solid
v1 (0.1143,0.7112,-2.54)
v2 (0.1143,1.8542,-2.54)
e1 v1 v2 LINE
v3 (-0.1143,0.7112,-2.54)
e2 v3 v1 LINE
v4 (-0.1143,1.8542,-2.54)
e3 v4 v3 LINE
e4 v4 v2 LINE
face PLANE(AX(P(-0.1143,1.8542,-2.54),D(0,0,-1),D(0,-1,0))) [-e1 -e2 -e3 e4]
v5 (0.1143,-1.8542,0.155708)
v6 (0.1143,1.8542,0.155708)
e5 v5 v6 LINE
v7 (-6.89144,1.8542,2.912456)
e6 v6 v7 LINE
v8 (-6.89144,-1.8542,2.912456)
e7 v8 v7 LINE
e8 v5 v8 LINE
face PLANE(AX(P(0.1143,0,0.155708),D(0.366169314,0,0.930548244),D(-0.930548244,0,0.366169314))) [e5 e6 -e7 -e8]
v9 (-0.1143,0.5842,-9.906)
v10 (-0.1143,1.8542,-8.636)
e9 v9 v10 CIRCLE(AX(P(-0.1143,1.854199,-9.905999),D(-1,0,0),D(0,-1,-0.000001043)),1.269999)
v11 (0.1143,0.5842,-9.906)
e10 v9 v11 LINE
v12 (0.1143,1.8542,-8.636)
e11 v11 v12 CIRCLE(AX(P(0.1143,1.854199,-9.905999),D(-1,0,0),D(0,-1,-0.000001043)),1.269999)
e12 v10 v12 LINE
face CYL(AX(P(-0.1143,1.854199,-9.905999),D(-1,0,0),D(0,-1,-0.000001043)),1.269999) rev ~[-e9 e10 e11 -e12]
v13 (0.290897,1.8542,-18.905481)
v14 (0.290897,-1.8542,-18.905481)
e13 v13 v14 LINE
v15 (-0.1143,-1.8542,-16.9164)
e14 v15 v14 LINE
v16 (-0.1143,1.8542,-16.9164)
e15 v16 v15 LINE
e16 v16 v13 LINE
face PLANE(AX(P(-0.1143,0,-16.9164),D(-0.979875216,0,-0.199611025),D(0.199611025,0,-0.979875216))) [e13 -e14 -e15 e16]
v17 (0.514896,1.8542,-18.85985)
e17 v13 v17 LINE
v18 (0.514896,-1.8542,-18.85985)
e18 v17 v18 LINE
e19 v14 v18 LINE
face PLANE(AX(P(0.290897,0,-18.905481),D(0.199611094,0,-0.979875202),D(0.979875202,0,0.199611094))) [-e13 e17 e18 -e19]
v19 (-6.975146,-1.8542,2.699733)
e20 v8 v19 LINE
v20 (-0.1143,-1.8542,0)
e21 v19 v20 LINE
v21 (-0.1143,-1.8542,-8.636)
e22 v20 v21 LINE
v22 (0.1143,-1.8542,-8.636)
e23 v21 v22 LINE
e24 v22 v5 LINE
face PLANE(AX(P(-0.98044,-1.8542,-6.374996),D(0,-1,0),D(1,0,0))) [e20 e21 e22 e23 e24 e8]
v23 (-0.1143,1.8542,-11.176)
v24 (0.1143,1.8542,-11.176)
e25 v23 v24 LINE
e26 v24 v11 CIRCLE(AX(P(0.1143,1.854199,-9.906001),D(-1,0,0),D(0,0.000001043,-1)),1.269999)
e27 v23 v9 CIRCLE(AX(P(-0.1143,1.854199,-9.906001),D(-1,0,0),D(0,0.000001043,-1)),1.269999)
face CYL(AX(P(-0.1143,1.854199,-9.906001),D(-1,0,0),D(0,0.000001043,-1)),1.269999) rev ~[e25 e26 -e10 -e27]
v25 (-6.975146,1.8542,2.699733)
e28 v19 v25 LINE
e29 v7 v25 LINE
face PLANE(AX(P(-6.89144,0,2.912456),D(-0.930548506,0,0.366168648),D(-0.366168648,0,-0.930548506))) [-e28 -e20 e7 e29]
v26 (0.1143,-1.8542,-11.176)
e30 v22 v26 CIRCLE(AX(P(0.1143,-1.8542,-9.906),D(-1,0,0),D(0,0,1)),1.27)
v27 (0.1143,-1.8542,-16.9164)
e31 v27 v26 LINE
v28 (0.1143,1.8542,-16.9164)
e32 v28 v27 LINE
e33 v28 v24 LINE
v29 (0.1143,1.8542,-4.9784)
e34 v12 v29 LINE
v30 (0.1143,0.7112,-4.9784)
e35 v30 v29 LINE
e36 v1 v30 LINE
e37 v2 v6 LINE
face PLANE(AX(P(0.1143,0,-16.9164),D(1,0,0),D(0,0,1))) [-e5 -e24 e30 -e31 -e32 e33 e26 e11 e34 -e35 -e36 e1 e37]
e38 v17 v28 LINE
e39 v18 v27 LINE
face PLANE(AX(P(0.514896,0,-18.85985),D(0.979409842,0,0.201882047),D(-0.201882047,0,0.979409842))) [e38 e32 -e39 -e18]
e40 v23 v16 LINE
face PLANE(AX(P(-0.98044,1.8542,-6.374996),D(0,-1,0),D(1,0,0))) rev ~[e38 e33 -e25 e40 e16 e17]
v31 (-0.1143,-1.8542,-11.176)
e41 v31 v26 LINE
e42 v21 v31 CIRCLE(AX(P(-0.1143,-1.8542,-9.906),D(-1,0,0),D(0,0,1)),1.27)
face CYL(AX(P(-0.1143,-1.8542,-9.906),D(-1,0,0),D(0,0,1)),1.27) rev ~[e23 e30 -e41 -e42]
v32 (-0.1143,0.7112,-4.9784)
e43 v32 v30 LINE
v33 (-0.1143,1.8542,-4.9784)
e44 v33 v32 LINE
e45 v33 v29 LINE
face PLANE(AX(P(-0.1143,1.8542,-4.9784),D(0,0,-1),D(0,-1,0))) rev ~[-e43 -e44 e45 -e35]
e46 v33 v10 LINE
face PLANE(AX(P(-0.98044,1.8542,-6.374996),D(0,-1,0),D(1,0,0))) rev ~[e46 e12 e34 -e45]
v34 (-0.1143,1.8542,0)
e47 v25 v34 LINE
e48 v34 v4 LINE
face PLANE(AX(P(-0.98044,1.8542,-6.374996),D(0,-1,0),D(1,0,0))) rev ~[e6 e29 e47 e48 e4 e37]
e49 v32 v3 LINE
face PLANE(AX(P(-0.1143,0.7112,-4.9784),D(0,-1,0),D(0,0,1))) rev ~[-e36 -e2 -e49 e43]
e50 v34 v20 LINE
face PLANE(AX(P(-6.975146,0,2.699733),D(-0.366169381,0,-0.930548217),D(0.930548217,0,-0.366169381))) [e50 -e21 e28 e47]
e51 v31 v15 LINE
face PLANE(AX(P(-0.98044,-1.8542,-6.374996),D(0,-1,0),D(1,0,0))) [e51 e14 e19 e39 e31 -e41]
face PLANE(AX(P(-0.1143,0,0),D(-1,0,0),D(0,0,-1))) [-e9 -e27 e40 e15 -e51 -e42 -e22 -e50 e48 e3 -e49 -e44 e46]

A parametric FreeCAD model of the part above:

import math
import FreeCAD as App
import Part
import Sketcher

V = App.Vector
Q = App.Units.Quantity


def add_polygon(sketch, points):
    """Adds a closed chain of lines whose ends are joined by coincident constraints."""
    first, n = sketch.GeometryCount, len(points)
    for a, b in zip(points, points[1:] + points[:1]):
        sketch.addGeometry(Part.LineSegment(App.Vector(*a, 0), App.Vector(*b, 0)), False)
    for i in range(n):
        sketch.addConstraint(Sketcher.Constraint("Coincident", first + i, 2, first + (i + 1) % n, 1))

doc = App.newDocument("Part")
body = doc.addObject("PartDesign::Body", "Body")

sketch1 = doc.addObject("Sketcher::SketchObject", "Sketch")
body.addObject(sketch1)
sketch1.AttachmentSupport = (doc.XZ_Plane, [""])
sketch1.MapMode = "FlatFace"
add_polygon(sketch1, [(-6.975146, 2.699733), (-0.1143, 0), (-0.1143, -16.9164), (0.290897, -18.905481), (0.514896, -18.85985), (0.1143, -16.9164), (0.1143, 0.155708), (-6.89144, 2.912456)])
sketch1.addConstraint([
    Sketcher.Constraint("Vertical", 1),
    Sketcher.Constraint("Vertical", 5),
    Sketcher.Constraint("PointOnObject", 0, 2, -1),
    Sketcher.Constraint("DistanceY", 1, 2, 1, 1, Q("0.666 in")),
    Sketcher.Constraint("Distance", 3, Q("0.009 in")),
    Sketcher.Constraint("Distance", 7, Q("0.009 in")),
    Sketcher.Constraint("DistanceY", 4, 2, -1, 1, Q("0.666 in")),
    Sketcher.Constraint("DistanceX", 1, 2, 4, 2, Q("0.009 in")),
    Sketcher.Constraint("DistanceX", 0, 2, -1, 1, Q("0.0045 in")),
    Sketcher.Constraint("DistanceY", 5, 1, 5, 2, 17.072108),
    Sketcher.Constraint("DistanceX", 2, 2, 3, 2, 0.223999),
    Sketcher.Constraint("DistanceY", 2, 2, -1, 1, 18.905481),
    Sketcher.Constraint("DistanceX", 6, 2, -1, 1, 6.89144),
    Sketcher.Constraint("DistanceY", 5, 2, 6, 2, 2.756748),
    Sketcher.Constraint("Distance", 0, 7.372908),
    Sketcher.Constraint("Distance", 2, 2.029933),
])
pad1 = doc.addObject("PartDesign::Pad", "Pad")
body.addObject(pad1)
pad1.Profile = sketch1
pad1.Length = Q("0.146 in")
pad1.Midplane = True

sketch2 = doc.addObject("Sketcher::SketchObject", "Sketch001")
body.addObject(sketch2)
sketch2.AttachmentSupport = (doc.YZ_Plane, [""])
sketch2.MapMode = "FlatFace"
sketch2.AttachmentOffset = App.Placement(V(0, 0, -0.0045 * 25.4), App.Rotation())
sketch2.addGeometry(Part.ArcOfCircle(Part.Circle(V(1.8542, -9.906, 0), V(0, 0, 1), 1.27), math.radians(-90), math.radians(90)), False)
sketch2.addGeometry(Part.ArcOfCircle(Part.Circle(V(1.854199, -9.906001, 0), V(0, 0, 1), 1.269999), math.radians(179.99994), math.radians(270.00006)), False)
sketch2.addGeometry(Part.ArcOfCircle(Part.Circle(V(1.854199, -9.905999, 0), V(0, 0, 1), 1.269999), math.radians(89.99994), math.radians(180.00006)), False)
sketch2.addGeometry(Part.ArcOfCircle(Part.Circle(V(-1.854201, -9.905999, 0), V(0, 0, 1), 1.269999), math.radians(89.99994), math.radians(180.00006)), False)
sketch2.addGeometry(Part.ArcOfCircle(Part.Circle(V(-1.8542, -9.906, 0), V(0, 0, 1), 1.27), math.radians(-90), math.radians(90)), False)
sketch2.addGeometry(Part.ArcOfCircle(Part.Circle(V(-1.854201, -9.906001, 0), V(0, 0, 1), 1.269999), math.radians(179.99994), math.radians(270.00006)), False)
add_polygon(sketch2, [(1.8542, -2.54), (1.8542, -4.9784), (0.7112, -4.9784), (0.7112, -2.54)])
sketch2.addConstraint([
    Sketcher.Constraint("Tangent", 0, 1, 1, 2),
    Sketcher.Constraint("Coincident", 1, 1, 2, 2),
    Sketcher.Constraint("Tangent", 2, 1, 0, 2),
    Sketcher.Constraint("Tangent", 3, 1, 4, 2),
    Sketcher.Constraint("Tangent", 4, 1, 5, 2),
    Sketcher.Constraint("Coincident", 5, 1, 3, 2),
    Sketcher.Constraint("Vertical", 6),
    Sketcher.Constraint("Horizontal", 7),
    Sketcher.Constraint("Vertical", 8),
    Sketcher.Constraint("Horizontal", 9),
    Sketcher.Constraint("Equal", 0, 1),
    Sketcher.Constraint("Equal", 2, 3),
    Sketcher.Constraint("Equal", 3, 4),
    Sketcher.Constraint("Symmetric", 0, 3, 3, 3, -2),
    Sketcher.Constraint("Horizontal", 5, 3, 1, 1),
    Sketcher.Constraint("Horizontal", 1, 1, 5, 1),
    Sketcher.Constraint("Vertical", 2, 3, 0, 1),
    Sketcher.Constraint("Vertical", 0, 1, 2, 1),
    Sketcher.Constraint("Vertical", 5, 3, 3, 1),
    Sketcher.Constraint("Vertical", 3, 1, 4, 1),
    Sketcher.Constraint("Vertical", 2, 1, 6, 2),
    Sketcher.Constraint("Radius", 0, Q("0.05 in")),
    Sketcher.Constraint("DistanceY", 8, 2, -1, 1, Q("0.1 in")),
    Sketcher.Constraint("DistanceX", 7, 2, 7, 1, Q("0.045 in")),
    Sketcher.Constraint("DistanceY", 6, 2, 6, 1, Q("0.096 in")),
    Sketcher.Constraint("DistanceY", 0, 3, -1, 1, Q("0.39 in")),
    Sketcher.Constraint("DistanceX", -1, 1, 0, 3, Q("0.073 in")),
])
pocket1 = doc.addObject("PartDesign::Pocket", "Pocket")
body.addObject(pocket1)
pocket1.Profile = sketch2
pocket1.Length = Q("1 in")
pocket1.Reversed = True

doc.recompute()
